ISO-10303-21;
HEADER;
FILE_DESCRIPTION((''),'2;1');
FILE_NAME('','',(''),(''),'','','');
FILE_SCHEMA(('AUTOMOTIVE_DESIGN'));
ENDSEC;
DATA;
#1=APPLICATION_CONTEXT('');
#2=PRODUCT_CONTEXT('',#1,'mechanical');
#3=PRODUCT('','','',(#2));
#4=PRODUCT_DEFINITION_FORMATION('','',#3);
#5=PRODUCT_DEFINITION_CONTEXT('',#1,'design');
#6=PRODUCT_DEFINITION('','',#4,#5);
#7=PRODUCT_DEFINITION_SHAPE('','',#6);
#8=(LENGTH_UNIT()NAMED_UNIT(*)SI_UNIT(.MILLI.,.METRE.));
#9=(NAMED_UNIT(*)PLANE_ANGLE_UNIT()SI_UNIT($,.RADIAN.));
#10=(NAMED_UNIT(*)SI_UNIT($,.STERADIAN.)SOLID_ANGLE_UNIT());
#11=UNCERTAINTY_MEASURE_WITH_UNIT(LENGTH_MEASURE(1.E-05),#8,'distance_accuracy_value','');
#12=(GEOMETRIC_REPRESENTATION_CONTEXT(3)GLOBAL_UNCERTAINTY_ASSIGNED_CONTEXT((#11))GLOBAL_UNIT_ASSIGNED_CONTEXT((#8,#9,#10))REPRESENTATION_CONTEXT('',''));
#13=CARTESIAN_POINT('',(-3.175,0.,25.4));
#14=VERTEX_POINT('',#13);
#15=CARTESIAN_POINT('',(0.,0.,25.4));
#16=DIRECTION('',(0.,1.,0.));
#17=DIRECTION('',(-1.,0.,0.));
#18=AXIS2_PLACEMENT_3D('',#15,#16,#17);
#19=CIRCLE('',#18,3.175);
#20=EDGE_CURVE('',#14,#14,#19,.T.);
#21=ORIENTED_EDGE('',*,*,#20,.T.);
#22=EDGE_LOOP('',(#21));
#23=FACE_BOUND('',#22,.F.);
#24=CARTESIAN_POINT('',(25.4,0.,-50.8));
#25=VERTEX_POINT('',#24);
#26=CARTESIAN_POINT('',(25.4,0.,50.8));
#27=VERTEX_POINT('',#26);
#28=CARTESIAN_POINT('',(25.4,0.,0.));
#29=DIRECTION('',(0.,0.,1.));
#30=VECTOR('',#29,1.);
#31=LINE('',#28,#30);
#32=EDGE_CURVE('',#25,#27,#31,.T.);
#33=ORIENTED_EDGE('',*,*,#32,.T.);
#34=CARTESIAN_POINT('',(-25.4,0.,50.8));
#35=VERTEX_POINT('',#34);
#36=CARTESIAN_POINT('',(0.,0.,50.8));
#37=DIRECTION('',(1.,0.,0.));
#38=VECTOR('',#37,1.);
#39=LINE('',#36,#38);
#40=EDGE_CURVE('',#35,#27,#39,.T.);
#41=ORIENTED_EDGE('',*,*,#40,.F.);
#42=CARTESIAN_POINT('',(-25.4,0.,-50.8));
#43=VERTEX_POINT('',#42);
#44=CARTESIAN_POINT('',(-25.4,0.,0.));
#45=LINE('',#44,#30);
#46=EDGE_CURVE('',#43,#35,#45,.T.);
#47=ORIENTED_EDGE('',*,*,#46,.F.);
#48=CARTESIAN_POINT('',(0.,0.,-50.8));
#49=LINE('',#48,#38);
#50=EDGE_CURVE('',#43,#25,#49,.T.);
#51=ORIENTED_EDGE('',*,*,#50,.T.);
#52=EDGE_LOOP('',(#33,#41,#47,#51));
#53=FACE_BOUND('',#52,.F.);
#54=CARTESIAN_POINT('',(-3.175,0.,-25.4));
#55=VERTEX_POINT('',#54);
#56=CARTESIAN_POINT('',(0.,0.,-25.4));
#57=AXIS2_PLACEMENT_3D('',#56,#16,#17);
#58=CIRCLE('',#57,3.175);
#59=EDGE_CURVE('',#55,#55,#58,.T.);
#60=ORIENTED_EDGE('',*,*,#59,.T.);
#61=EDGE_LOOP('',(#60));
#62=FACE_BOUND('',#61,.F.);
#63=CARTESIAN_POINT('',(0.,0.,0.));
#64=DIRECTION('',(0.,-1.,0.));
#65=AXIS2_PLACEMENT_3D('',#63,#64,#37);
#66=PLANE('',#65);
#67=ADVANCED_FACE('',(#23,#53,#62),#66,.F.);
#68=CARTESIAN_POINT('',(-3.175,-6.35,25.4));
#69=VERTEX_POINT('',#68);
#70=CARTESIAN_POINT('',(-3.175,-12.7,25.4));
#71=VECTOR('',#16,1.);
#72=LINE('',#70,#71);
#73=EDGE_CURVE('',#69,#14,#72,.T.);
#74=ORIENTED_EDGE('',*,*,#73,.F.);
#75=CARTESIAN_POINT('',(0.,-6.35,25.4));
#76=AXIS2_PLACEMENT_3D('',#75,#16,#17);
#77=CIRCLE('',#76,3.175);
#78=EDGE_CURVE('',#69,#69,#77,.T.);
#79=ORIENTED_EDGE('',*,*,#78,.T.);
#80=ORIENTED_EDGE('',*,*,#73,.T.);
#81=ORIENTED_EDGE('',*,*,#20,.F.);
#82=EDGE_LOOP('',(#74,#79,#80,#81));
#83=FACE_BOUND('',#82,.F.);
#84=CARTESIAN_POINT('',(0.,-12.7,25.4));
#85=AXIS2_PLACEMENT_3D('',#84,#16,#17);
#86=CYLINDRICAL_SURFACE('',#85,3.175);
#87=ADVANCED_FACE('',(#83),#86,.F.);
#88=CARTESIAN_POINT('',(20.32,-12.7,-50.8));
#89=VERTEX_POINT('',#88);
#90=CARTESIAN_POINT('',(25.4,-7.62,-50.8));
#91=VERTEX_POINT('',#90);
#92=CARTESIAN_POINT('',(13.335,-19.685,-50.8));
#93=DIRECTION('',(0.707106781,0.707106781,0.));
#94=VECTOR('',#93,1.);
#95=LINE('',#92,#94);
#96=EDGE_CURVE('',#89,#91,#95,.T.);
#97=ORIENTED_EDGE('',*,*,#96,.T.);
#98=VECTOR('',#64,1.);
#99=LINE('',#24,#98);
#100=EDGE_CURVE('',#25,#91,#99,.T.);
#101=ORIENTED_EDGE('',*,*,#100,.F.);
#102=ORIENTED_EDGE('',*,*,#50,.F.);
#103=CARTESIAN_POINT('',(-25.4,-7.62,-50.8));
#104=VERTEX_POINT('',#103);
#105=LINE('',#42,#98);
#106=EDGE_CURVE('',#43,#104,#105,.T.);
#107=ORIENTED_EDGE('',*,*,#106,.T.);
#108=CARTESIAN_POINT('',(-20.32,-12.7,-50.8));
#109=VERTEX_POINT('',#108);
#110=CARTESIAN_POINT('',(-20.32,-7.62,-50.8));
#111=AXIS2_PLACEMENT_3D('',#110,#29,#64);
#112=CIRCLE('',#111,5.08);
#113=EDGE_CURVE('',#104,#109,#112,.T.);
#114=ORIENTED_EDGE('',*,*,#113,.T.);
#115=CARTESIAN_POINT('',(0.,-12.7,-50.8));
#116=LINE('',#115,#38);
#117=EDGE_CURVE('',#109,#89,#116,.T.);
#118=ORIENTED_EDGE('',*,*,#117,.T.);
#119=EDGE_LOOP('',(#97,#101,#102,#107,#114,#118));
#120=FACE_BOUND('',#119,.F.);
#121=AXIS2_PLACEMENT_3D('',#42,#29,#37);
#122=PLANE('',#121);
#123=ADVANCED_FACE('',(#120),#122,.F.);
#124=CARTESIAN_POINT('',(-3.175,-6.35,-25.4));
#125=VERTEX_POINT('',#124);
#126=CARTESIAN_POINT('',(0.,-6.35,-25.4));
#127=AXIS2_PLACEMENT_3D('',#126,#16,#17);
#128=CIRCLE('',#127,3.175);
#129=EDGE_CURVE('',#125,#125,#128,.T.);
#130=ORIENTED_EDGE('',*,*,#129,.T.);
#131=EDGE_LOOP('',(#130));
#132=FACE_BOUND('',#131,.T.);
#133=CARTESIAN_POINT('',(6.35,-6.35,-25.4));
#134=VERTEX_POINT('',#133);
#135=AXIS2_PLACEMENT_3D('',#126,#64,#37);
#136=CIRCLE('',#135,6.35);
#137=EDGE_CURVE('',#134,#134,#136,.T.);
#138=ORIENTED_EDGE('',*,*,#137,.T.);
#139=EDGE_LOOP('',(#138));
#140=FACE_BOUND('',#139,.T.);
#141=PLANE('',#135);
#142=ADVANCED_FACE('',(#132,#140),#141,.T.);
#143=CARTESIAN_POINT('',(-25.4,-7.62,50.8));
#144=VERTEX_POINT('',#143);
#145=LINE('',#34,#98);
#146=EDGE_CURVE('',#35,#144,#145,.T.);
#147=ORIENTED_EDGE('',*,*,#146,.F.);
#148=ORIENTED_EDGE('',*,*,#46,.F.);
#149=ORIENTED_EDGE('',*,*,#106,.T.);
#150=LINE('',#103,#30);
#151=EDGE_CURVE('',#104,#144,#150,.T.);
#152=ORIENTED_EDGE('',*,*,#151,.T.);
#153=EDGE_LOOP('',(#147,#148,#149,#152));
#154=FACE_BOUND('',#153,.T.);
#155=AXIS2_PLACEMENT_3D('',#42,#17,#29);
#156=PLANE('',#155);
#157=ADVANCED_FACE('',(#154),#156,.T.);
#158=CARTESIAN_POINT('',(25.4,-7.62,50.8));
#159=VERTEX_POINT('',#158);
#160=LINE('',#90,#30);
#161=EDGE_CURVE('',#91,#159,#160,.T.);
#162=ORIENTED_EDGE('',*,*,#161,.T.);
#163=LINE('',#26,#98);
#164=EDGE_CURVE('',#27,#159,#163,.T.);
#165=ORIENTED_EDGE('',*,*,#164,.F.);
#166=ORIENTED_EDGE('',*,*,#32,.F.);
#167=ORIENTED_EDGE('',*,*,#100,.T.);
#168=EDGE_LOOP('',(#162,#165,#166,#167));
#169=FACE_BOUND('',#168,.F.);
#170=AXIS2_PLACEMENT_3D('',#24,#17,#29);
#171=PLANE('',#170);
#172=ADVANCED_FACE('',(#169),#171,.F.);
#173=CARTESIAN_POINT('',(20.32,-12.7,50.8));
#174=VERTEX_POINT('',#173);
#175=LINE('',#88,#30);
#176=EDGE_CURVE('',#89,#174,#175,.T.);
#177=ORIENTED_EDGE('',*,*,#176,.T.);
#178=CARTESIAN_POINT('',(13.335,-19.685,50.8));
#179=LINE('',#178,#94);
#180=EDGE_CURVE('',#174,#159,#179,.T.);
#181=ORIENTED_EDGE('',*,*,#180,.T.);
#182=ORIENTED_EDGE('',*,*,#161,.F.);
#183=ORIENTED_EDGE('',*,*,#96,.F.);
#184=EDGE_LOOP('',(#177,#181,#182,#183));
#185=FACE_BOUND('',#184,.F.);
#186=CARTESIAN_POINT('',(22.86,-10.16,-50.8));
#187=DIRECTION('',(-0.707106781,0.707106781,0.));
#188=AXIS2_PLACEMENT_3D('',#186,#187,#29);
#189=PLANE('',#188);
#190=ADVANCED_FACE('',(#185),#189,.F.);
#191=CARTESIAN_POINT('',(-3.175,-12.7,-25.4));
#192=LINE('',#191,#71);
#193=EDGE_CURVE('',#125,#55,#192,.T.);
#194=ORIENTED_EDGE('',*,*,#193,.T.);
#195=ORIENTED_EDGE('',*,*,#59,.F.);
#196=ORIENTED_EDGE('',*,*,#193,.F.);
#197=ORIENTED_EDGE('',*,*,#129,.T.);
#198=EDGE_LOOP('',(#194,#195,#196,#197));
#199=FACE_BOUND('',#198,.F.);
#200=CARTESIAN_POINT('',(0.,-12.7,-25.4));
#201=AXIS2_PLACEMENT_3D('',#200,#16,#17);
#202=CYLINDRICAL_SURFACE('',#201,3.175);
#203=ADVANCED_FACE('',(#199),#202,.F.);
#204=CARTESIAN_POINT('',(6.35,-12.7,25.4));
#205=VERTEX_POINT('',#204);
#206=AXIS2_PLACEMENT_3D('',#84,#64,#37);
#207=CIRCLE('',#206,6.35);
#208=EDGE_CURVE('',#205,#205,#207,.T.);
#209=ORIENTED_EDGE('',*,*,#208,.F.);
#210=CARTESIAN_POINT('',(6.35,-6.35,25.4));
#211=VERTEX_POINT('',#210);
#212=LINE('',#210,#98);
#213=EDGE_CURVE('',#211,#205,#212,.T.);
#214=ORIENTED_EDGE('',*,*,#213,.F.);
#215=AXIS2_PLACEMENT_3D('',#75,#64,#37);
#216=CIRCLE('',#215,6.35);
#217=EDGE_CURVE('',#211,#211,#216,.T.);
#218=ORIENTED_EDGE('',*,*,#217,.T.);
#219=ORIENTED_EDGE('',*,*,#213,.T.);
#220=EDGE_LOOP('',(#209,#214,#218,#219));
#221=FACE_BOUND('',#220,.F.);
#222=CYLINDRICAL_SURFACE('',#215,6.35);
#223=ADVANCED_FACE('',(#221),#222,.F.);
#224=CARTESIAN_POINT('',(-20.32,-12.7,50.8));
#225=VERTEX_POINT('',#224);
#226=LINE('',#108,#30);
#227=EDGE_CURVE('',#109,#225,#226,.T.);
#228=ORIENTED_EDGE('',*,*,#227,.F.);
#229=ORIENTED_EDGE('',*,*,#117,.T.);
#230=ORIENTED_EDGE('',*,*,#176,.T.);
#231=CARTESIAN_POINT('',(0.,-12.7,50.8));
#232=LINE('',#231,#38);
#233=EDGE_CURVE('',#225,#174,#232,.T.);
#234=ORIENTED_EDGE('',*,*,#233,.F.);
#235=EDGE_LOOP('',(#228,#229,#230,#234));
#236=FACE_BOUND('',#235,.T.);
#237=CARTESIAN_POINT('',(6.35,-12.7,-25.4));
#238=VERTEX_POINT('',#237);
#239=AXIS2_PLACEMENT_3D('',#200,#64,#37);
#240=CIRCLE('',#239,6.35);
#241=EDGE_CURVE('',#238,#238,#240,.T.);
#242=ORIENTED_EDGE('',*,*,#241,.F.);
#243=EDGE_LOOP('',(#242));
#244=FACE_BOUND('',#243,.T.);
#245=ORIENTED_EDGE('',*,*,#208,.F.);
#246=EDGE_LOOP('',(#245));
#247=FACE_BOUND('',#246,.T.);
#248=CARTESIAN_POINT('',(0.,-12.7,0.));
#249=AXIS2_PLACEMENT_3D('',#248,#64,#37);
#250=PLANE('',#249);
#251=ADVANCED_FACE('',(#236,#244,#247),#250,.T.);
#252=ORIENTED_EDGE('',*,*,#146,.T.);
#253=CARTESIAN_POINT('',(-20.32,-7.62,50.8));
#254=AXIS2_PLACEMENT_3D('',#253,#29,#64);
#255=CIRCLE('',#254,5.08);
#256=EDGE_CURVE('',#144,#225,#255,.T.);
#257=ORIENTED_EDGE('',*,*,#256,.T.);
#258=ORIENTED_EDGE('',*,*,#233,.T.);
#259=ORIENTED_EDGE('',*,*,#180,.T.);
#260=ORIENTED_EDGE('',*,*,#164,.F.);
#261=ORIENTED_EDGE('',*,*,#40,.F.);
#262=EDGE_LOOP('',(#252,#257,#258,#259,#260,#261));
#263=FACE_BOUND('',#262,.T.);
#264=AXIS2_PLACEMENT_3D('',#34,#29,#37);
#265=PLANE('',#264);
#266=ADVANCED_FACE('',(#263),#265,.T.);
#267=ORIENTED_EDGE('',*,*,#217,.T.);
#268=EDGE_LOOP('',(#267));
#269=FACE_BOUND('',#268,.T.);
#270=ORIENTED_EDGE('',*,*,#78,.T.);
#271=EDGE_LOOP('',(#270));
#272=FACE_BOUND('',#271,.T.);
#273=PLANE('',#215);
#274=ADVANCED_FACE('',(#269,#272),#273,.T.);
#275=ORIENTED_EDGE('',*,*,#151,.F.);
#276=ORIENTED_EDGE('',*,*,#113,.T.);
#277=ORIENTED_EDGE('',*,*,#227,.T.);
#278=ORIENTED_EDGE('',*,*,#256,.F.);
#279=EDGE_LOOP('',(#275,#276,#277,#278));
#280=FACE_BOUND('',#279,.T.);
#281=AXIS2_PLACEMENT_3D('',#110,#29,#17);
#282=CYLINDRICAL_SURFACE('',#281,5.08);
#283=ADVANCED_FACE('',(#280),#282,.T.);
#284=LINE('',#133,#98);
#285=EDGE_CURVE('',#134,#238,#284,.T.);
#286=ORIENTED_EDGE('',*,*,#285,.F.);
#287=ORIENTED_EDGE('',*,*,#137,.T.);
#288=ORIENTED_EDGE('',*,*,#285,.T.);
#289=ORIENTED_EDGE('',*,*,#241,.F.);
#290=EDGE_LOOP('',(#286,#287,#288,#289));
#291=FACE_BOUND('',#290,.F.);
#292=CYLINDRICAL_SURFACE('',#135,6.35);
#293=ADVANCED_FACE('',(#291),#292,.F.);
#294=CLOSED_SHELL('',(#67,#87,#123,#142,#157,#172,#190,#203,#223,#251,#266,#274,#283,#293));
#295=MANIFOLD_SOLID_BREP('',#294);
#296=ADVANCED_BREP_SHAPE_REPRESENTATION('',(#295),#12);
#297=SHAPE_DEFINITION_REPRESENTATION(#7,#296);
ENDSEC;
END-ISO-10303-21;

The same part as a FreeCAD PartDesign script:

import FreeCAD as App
import Part
import Sketcher
from FreeCAD import Vector
Q = App.Units.Quantity


def edges_at(feature, points):
    """Names of the edges that pass closest to the given points."""
    edges = feature.Shape.Edges
    near = lambda p: min(range(len(edges)), key=lambda i: edges[i].distToShape(Part.Vertex(*p))[0])
    return sorted({f"Edge{near(p) + 1}" for p in points})


def add_polygon(sketch, points):
    """Adds a closed chain of lines whose ends are joined by coincident constraints."""
    first, n = sketch.GeometryCount, len(points)
    for a, b in zip(points, points[1:] + points[:1]):
        sketch.addGeometry(Part.LineSegment(App.Vector(*a, 0), App.Vector(*b, 0)), False)
    for i in range(n):
        sketch.addConstraint(Sketcher.Constraint("Coincident", first + i, 2, first + (i + 1) % n, 1))

doc = App.newDocument("Part")
body = doc.addObject("PartDesign::Body", "Body")

# Sketch on XZ plane
sketch1 = body.newObject("Sketcher::SketchObject", "Sketch")
sketch1.AttachmentSupport = (doc.getObject("XZ_Plane"), [""])
sketch1.MapMode = "FlatFace"
add_polygon(sketch1, [(-25, 51), (-25, -51), (25, -51), (25, 51)])  # lines 0-3
sketch1.addConstraint([
    Sketcher.Constraint("Vertical", 0),
    Sketcher.Constraint("Horizontal", 1),
    Sketcher.Constraint("Vertical", 2),
    Sketcher.Constraint("Horizontal", 3),
    Sketcher.Constraint("Symmetric", 0, 2, 2, 2, -1, 1),
    Sketcher.Constraint("DistanceX", 1, 1, 1, 2, Q("2 in")),
    Sketcher.Constraint("DistanceY", 0, 2, 0, 1, Q("4 in")),
])
pad1 = body.newObject("PartDesign::Pad", "Pad")
pad1.Profile = sketch1
pad1.Length = Q("0.5 in")

# Sketch on XZ plane
sketch2 = body.newObject("Sketcher::SketchObject", "Sketch001")
sketch2.AttachmentSupport = (doc.getObject("XZ_Plane"), [""])
sketch2.MapMode = "FlatFace"
sketch2.AttachmentOffset = App.Placement(Vector(0, 0, 0.5 * 25.4), App.Rotation())
sketch2.addGeometry([
    Part.Circle(Vector(0, 25.4, 0), Vector(0, 0, 1), 3.2),
    Part.Circle(Vector(0, -25.4, 0), Vector(0, 0, 1), 3.2),
], False)
sketch2.addConstraint([
    Sketcher.Constraint("Equal", 0, 1),
    Sketcher.Constraint("Symmetric", 0, 3, 1, 3, -1, 1),
    Sketcher.Constraint("PointOnObject", 0, 3, -2),
    Sketcher.Constraint("Diameter", 0, Q("0.25 in")),
    Sketcher.Constraint("DistanceY", -1, 1, 0, 3, Q("1 in")),
])
doc.recompute()
hole = body.newObject("PartDesign::Hole", "Hole")
hole.Profile = sketch2
hole.ThreadType = "None"
hole.Diameter = Q("0.25 in")
hole.DepthType = "ThroughAll"
hole.HoleCutType = "Counterbore"
hole.HoleCutDiameter = Q("0.5 in")
hole.HoleCutDepth = Q("0.25 in")
doc.recompute()

fillet = body.newObject("PartDesign::Fillet", "Fillet")
fillet.Base = (hole, edges_at(hole, [(-25.4, -12.7, 0)]))
fillet.Radius = Q("0.2 in")
doc.recompute()

chamfer = body.newObject("PartDesign::Chamfer", "Chamfer")
chamfer.Base = (fillet, edges_at(fillet, [(25.4, -12.7, 0)]))
chamfer.Size = Q("0.2 in")

doc.recompute()
